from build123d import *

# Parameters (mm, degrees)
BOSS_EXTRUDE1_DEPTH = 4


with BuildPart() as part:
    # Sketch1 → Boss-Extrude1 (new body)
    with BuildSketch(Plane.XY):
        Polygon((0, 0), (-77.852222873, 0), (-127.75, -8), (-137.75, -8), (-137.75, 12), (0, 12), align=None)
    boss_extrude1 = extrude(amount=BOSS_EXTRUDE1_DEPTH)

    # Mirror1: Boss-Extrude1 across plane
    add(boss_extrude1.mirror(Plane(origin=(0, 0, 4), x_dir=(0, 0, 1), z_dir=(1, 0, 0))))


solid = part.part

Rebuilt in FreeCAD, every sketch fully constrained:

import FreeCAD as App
import Part
import Sketcher

V = App.Vector
Q = App.Units.Quantity

doc = App.newDocument("Part")
params = doc.addObject("Spreadsheet::Sheet", "Params")
for row, (alias, value) in enumerate([
    ("sketch1_width", "10 mm"),
    ("sketch1_height", "12 mm"),
    ("sketch1_height2", "20 mm"),
    ("sketch1_width2", "137.75 mm"),
    ("pad1_length", "4 mm"),
], start=1):
    params.set(f"A{row}", alias)
    params.set(f"B{row}", "=" + value)
    params.setAlias(f"B{row}", alias)

body = doc.addObject("PartDesign::Body", "Body")

sketch1 = body.newObject("Sketcher::SketchObject", "Sketch")
sketch1.AttachmentSupport = (doc.getObject("XY_Plane"), [""])
sketch1.MapMode = "FlatFace"
sketch1.addGeometry([
    Part.LineSegment(V(-78, 0, 0), V(0, 0, 0)),
    Part.LineSegment(V(0, 0, 0), V(0, 12, 0)),
    Part.LineSegment(V(0, 12, 0), V(-138, 12, 0)),
    Part.LineSegment(V(-138, 12, 0), V(-138, -8, 0)),
    Part.LineSegment(V(-138, -8, 0), V(-128, -8, 0)),
    Part.LineSegment(V(-128, -8, 0), V(-78, 0, 0)),
], False)
sketch1.addConstraint([
    Sketcher.Constraint("Coincident", 0, 2, 1, 1),
    Sketcher.Constraint("Coincident", 1, 2, 2, 1),
    Sketcher.Constraint("Coincident", 2, 2, 3, 1),
    Sketcher.Constraint("Coincident", 3, 2, 4, 1),
    Sketcher.Constraint("Coincident", 4, 2, 5, 1),
    Sketcher.Constraint("Coincident", 5, 2, 0, 1),
    Sketcher.Constraint("Horizontal", 0),
    Sketcher.Constraint("Vertical", 1),
    Sketcher.Constraint("Horizontal", 2),
    Sketcher.Constraint("Vertical", 3),
    Sketcher.Constraint("Horizontal", 4),
    Sketcher.Constraint("Coincident", 0, 2, -1, 1),
    Sketcher.Constraint("DistanceX", 4, 1, 4, 2, Q("10 mm")),
    Sketcher.Constraint("DistanceY", 1, 1, 1, 2, Q("12 mm")),
    Sketcher.Constraint("DistanceY", 3, 2, 3, 1, Q("20 mm")),
    Sketcher.Constraint("DistanceX", 2, 2, 2, 1, Q("137.75 mm")),
    Sketcher.Constraint("Distance", 5, Q("50.535019 mm")),
])
sketch1.setExpression("Constraints[12]", "Params.sketch1_width")
sketch1.setExpression("Constraints[13]", "Params.sketch1_height")
sketch1.setExpression("Constraints[14]", "Params.sketch1_height2")
sketch1.setExpression("Constraints[15]", "Params.sketch1_width2")
pad1 = body.newObject("PartDesign::Pad", "Pad")
pad1.Profile = sketch1
pad1.setExpression("Length", "Params.pad1_length")
doc.recompute()

mirrored = body.newObject("PartDesign::Mirrored", "Mirrored")
mirrored.Originals = [pad1]
mirrored.MirrorPlane = (doc.getObject("YZ_Plane"), [""])
body.Tip = mirrored

doc.recompute()
